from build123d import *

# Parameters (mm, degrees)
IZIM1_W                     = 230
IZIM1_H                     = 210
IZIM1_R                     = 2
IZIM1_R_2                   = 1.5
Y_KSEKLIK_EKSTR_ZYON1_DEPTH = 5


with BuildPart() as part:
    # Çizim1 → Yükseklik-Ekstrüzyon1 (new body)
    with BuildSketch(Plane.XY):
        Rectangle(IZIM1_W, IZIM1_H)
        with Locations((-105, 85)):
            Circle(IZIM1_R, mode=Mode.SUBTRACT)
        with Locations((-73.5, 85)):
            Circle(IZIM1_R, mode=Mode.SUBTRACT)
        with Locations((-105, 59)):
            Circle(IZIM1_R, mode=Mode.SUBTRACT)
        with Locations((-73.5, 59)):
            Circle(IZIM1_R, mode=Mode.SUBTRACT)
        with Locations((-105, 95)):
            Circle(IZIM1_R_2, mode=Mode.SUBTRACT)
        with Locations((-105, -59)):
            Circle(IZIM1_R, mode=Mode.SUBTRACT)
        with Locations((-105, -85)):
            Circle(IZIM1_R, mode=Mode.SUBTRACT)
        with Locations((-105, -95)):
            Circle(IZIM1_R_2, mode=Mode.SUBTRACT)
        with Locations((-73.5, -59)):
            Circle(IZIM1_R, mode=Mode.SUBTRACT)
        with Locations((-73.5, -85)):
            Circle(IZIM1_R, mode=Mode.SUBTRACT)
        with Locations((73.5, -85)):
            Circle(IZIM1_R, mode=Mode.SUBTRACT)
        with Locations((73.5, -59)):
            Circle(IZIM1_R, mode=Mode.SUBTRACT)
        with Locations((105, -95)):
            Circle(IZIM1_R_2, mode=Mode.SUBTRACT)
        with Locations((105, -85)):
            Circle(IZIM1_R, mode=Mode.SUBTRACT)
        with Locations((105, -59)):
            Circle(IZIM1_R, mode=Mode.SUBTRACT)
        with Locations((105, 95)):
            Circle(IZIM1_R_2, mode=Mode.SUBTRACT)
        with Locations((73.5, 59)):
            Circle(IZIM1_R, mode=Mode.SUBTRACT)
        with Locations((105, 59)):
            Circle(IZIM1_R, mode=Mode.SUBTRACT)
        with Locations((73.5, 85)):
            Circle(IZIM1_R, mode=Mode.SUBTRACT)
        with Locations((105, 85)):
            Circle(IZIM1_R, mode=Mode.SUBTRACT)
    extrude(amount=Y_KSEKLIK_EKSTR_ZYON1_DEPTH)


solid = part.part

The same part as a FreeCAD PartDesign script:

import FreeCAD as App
import Part
import Sketcher
from FreeCAD import Vector
Q = App.Units.Quantity


def add_polygon(sketch, points):
    """Adds a closed chain of lines whose ends are joined by coincident constraints."""
    first, n = sketch.GeometryCount, len(points)
    for a, b in zip(points, points[1:] + points[:1]):
        sketch.addGeometry(Part.LineSegment(App.Vector(*a, 0), App.Vector(*b, 0)), False)
    for i in range(n):
        sketch.addConstraint(Sketcher.Constraint("Coincident", first + i, 2, first + (i + 1) % n, 1))

doc = App.newDocument("Part")
body = doc.addObject("PartDesign::Body", "Body")

# Sketch on XY plane
sketch1 = body.newObject("Sketcher::SketchObject", "Sketch")
sketch1.AttachmentSupport = (doc.getObject("XY_Plane"), [""])
sketch1.MapMode = "FlatFace"
add_polygon(sketch1, [(-115, 105), (-115, -105), (115, -105), (115, 105)])  # lines 0-3
sketch1.addGeometry(Part.Circle(Vector(-105, -95, 0), Vector(0, 0, 1), 1.5), False)  # 4
sketch1.addGeometry(Part.Circle(Vector(-105, -85, 0), Vector(0, 0, 1), 2), False)  # 5
sketch1.addGeometry(Part.Circle(Vector(-73.5, -85, 0), Vector(0, 0, 1), 2), False)  # 6
sketch1.addGeometry(Part.Circle(Vector(-105, -59, 0), Vector(0, 0, 1), 2), False)  # 7
sketch1.addGeometry(Part.Circle(Vector(-73.5, -59, 0), Vector(0, 0, 1), 2), False)  # 8
sketch1.addGeometry(Part.Circle(Vector(73.5, -85, 0), Vector(0, 0, 1), 2), False)  # 9
sketch1.addGeometry(Part.Circle(Vector(105, -95, 0), Vector(0, 0, 1), 1.5), False)  # 10
sketch1.addGeometry(Part.Circle(Vector(105, -85, 0), Vector(0, 0, 1), 2), False)  # 11
sketch1.addGeometry(Part.Circle(Vector(73.5, -59, 0), Vector(0, 0, 1), 2), False)  # 12
sketch1.addGeometry(Part.Circle(Vector(105, -59, 0), Vector(0, 0, 1), 2), False)  # 13
sketch1.addGeometry(Part.Circle(Vector(-105, 59, 0), Vector(0, 0, 1), 2), False)  # 14
sketch1.addGeometry(Part.Circle(Vector(-73.5, 59, 0), Vector(0, 0, 1), 2), False)  # 15
sketch1.addGeometry(Part.Circle(Vector(-105, 85, 0), Vector(0, 0, 1), 2), False)  # 16
sketch1.addGeometry(Part.Circle(Vector(-105, 95, 0), Vector(0, 0, 1), 1.5), False)  # 17
sketch1.addGeometry(Part.Circle(Vector(-73.5, 85, 0), Vector(0, 0, 1), 2), False)  # 18
sketch1.addGeometry(Part.Circle(Vector(73.5, 59, 0), Vector(0, 0, 1), 2), False)  # 19
sketch1.addGeometry(Part.Circle(Vector(105, 59, 0), Vector(0, 0, 1), 2), False)  # 20
sketch1.addGeometry(Part.Circle(Vector(73.5, 85, 0), Vector(0, 0, 1), 2), False)  # 21
sketch1.addGeometry(Part.Circle(Vector(105, 85, 0), Vector(0, 0, 1), 2), False)  # 22
sketch1.addGeometry(Part.Circle(Vector(105, 95, 0), Vector(0, 0, 1), 1.5), False)  # 23
sketch1.addConstraint(Sketcher.Constraint("Vertical", 0))
sketch1.addConstraint(Sketcher.Constraint("Horizontal", 1))
sketch1.addConstraint(Sketcher.Constraint("Vertical", 2))
sketch1.addConstraint(Sketcher.Constraint("Horizontal", 3))
sketch1.addConstraint(Sketcher.Constraint("Equal", 5, 6))
sketch1.addConstraint(Sketcher.Constraint("Equal", 6, 7))
sketch1.addConstraint(Sketcher.Constraint("Equal", 7, 8))
sketch1.addConstraint(Sketcher.Constraint("Equal", 8, 9))
sketch1.addConstraint(Sketcher.Constraint("Equal", 4, 10))
sketch1.addConstraint(Sketcher.Constraint("Equal", 9, 11))
sketch1.addConstraint(Sketcher.Constraint("Equal", 11, 12))
sketch1.addConstraint(Sketcher.Constraint("Equal", 12, 13))
sketch1.addConstraint(Sketcher.Constraint("Equal", 13, 14))
sketch1.addConstraint(Sketcher.Constraint("Equal", 14, 15))
sketch1.addConstraint(Sketcher.Constraint("Equal", 15, 16))
sketch1.addConstraint(Sketcher.Constraint("Equal", 10, 17))
sketch1.addConstraint(Sketcher.Constraint("Equal", 16, 18))
sketch1.addConstraint(Sketcher.Constraint("Equal", 18, 19))
sketch1.addConstraint(Sketcher.Constraint("Equal", 19, 20))
sketch1.addConstraint(Sketcher.Constraint("Equal", 20, 21))
sketch1.addConstraint(Sketcher.Constraint("Equal", 21, 22))
sketch1.addConstraint(Sketcher.Constraint("Equal", 17, 23))
sketch1.addConstraint(Sketcher.Constraint("Symmetric", 13, 3, 14, 3, -1, 1))
sketch1.addConstraint(Sketcher.Constraint("Symmetric", 12, 3, 15, 3, -1, 1))
sketch1.addConstraint(Sketcher.Constraint("Symmetric", 11, 3, 16, 3, -1, 1))
sketch1.addConstraint(Sketcher.Constraint("Symmetric", 10, 3, 17, 3, -1, 1))
sketch1.addConstraint(Sketcher.Constraint("Symmetric", 9, 3, 18, 3, -1, 1))
sketch1.addConstraint(Sketcher.Constraint("Symmetric", 8, 3, 19, 3, -1, 1))
sketch1.addConstraint(Sketcher.Constraint("Symmetric", 7, 3, 20, 3, -1, 1))
sketch1.addConstraint(Sketcher.Constraint("Symmetric", 6, 3, 21, 3, -1, 1))
sketch1.addConstraint(Sketcher.Constraint("Symmetric", 5, 3, 22, 3, -1, 1))
sketch1.addConstraint(Sketcher.Constraint("Symmetric", 4, 3, 23, 3, -1, 1))
sketch1.addConstraint(Sketcher.Constraint("Symmetric", 0, 2, 2, 2, -1, 1))
sketch1.addConstraint(Sketcher.Constraint("Symmetric", 6, 3, 9, 3, -2))
sketch1.addConstraint(Sketcher.Constraint("Symmetric", 4, 3, 10, 3, -2))
sketch1.addConstraint(Sketcher.Constraint("Symmetric", 5, 3, 11, 3, -2))
sketch1.addConstraint(Sketcher.Constraint("Symmetric", 8, 3, 12, 3, -2))
sketch1.addConstraint(Sketcher.Constraint("Symmetric", 7, 3, 13, 3, -2))
sketch1.addConstraint(Sketcher.Constraint("Horizontal", 5, 3, 6, 3))
sketch1.addConstraint(Sketcher.Constraint("Horizontal", 7, 3, 8, 3))
sketch1.addConstraint(Sketcher.Constraint("Vertical", 4, 3, 5, 3))
sketch1.addConstraint(Sketcher.Constraint("Vertical", 5, 3, 7, 3))
sketch1.addConstraint(Sketcher.Constraint("Vertical", 6, 3, 8, 3))
sketch1.addConstraint(Sketcher.Constraint("Diameter", 4, Q("3 mm")))
sketch1.addConstraint(Sketcher.Constraint("Diameter", 5, Q("4 mm")))
sketch1.addConstraint(Sketcher.Constraint("DistanceX", 1, 1, 1, 2, Q("230 mm")))
sketch1.addConstraint(Sketcher.Constraint("DistanceY", 0, 2, 0, 1, Q("210 mm")))
sketch1.addConstraint(Sketcher.Constraint("DistanceX", 4, 3, -1, 1, Q("105 mm")))
sketch1.addConstraint(Sketcher.Constraint("DistanceY", 4, 3, -1, 1, Q("95 mm")))
sketch1.addConstraint(Sketcher.Constraint("DistanceY", 5, 3, -1, 1, Q("85 mm")))
sketch1.addConstraint(Sketcher.Constraint("DistanceY", 7, 3, -1, 1, Q("59 mm")))
sketch1.addConstraint(Sketcher.Constraint("DistanceX", 6, 3, 9, 3, Q("147 mm")))
pad1 = body.newObject("PartDesign::Pad", "Pad")
pad1.Profile = sketch1
pad1.Length = 5

doc.recompute()
